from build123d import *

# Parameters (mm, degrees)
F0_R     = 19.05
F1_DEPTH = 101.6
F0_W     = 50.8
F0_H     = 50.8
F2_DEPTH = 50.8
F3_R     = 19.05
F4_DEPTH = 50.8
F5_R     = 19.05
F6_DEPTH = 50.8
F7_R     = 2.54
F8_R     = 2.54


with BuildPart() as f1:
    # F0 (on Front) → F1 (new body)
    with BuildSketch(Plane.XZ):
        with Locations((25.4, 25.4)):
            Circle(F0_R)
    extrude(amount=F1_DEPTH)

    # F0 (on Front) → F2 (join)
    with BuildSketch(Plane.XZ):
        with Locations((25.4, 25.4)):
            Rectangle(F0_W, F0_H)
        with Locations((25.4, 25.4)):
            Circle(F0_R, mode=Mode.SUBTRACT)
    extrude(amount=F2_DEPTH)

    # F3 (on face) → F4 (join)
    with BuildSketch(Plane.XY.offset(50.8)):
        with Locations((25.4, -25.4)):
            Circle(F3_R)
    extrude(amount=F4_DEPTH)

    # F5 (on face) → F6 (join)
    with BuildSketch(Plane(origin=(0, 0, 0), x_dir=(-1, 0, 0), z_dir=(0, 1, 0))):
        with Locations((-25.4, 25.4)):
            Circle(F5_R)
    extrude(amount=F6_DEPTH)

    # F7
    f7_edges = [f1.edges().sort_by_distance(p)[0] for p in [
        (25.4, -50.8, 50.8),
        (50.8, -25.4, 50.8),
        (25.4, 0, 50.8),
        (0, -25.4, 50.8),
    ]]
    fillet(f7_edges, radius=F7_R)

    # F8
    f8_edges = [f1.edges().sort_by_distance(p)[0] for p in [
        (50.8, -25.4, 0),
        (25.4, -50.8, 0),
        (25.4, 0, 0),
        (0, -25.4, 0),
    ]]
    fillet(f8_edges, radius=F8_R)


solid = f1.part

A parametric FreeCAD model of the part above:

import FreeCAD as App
import Part
import Sketcher
from FreeCAD import Vector
Q = App.Units.Quantity


def edges_at(feature, points):
    """Names of the edges that pass closest to the given points."""
    edges = feature.Shape.Edges
    near = lambda p: min(range(len(edges)), key=lambda i: edges[i].distToShape(Part.Vertex(*p))[0])
    return sorted({f"Edge{near(p) + 1}" for p in points})

doc = App.newDocument("Part")
body = doc.addObject("PartDesign::Body", "Body")

sketch1 = body.newObject("Sketcher::SketchObject", "Sketch")
sketch1.AttachmentSupport = (doc.getObject("XZ_Plane"), [""])
sketch1.MapMode = "FlatFace"
sketch1.addGeometry(Part.Circle(Vector(25.4, 25.4, 0), Vector(0, 0, 1), 19.05), False)
sketch1.addConstraint([
    Sketcher.Constraint("Diameter", 0, Q("1.5 in")),
    Sketcher.Constraint("DistanceX", -1, 1, 0, 3, Q("1 in")),
    Sketcher.Constraint("DistanceY", -1, 1, 0, 3, Q("1 in")),
])
pad1 = body.newObject("PartDesign::Pad", "Pad")
pad1.Profile = sketch1
pad1.Length = Q("4 in")

sketch2 = body.newObject("Sketcher::SketchObject", "Sketch001")
sketch2.AttachmentSupport = (doc.getObject("XZ_Plane"), [""])
sketch2.MapMode = "FlatFace"
sketch2.addGeometry([
    Part.LineSegment(Vector(0, 50.8, 0), Vector(0, 0, 0)),
    Part.LineSegment(Vector(0, 0, 0), Vector(50.8, 0, 0)),
    Part.LineSegment(Vector(50.8, 0, 0), Vector(50.8, 50.8, 0)),
    Part.LineSegment(Vector(50.8, 50.8, 0), Vector(0, 50.8, 0)),
    Part.Circle(Vector(25.4, 25.4, 0), Vector(0, 0, 1), 19.05),
], False)
sketch2.addConstraint([
    Sketcher.Constraint("Coincident", 0, 2, 1, 1),
    Sketcher.Constraint("Coincident", 1, 2, 2, 1),
    Sketcher.Constraint("Coincident", 2, 2, 3, 1),
    Sketcher.Constraint("Coincident", 3, 2, 0, 1),
    Sketcher.Constraint("Vertical", 0),
    Sketcher.Constraint("Horizontal", 1),
    Sketcher.Constraint("Vertical", 2),
    Sketcher.Constraint("Horizontal", 3),
    Sketcher.Constraint("Coincident", 0, 2, -1, 1),
    Sketcher.Constraint("Equal", 3, 0),
    Sketcher.Constraint("Diameter", 4, Q("1.5 in")),
    Sketcher.Constraint("DistanceX", 1, 1, 1, 2, Q("2 in")),
    Sketcher.Constraint("DistanceX", -1, 1, 4, 3, Q("1 in")),
    Sketcher.Constraint("DistanceY", -1, 1, 4, 3, Q("1 in")),
])
pad2 = body.newObject("PartDesign::Pad", "Pad001")
pad2.Profile = sketch2
pad2.Length = Q("2 in")

sketch3 = body.newObject("Sketcher::SketchObject", "Sketch002")
sketch3.AttachmentSupport = (doc.getObject("XY_Plane"), [""])
sketch3.MapMode = "FlatFace"
sketch3.AttachmentOffset = App.Placement(Vector(0, 0, 2 * 25.4), App.Rotation())
sketch3.addGeometry(Part.Circle(Vector(25.4, -25.4, 0), Vector(0, 0, 1), 19.05), False)
sketch3.addConstraint([
    Sketcher.Constraint("Diameter", 0, Q("1.5 in")),
    Sketcher.Constraint("DistanceX", -1, 1, 0, 3, Q("1 in")),
    Sketcher.Constraint("DistanceY", 0, 3, -1, 1, Q("1 in")),
])
pad3 = body.newObject("PartDesign::Pad", "Pad002")
pad3.Profile = sketch3
pad3.Length = Q("2 in")

sketch4 = body.newObject("Sketcher::SketchObject", "Sketch003")
sketch4.AttachmentSupport = (doc.getObject("XZ_Plane"), [""])
sketch4.MapMode = "FlatFace"
sketch4.addGeometry(Part.Circle(Vector(25.4, 25.4, 0), Vector(0, 0, 1), 19.05), False)
sketch4.addConstraint([
    Sketcher.Constraint("Diameter", 0, Q("1.5 in")),
    Sketcher.Constraint("DistanceX", -1, 1, 0, 3, Q("1 in")),
    Sketcher.Constraint("DistanceY", -1, 1, 0, 3, Q("1 in")),
])
pad4 = body.newObject("PartDesign::Pad", "Pad003")
pad4.Profile = sketch4
pad4.Length = Q("2 in")
pad4.Reversed = True
doc.recompute()

fillet = body.newObject("PartDesign::Fillet", "Fillet")
fillet.Base = (pad4, edges_at(pad4, [
    (25.4, -50.8, 50.8),
    (50.8, -25.4, 50.8),
    (25.4, 0, 50.8),
    (0, -25.4, 50.8),
]))
fillet.Radius = Q("0.1 in")
doc.recompute()

fillet2 = body.newObject("PartDesign::Fillet", "Fillet001")
fillet2.Base = (fillet, edges_at(fillet, [
    (50.8, -25.4, 0),
    (25.4, -50.8, 0),
    (25.4, 0, 0),
    (0, -25.4, 0),
]))
fillet2.Radius = Q("0.1 in")

doc.recompute()
